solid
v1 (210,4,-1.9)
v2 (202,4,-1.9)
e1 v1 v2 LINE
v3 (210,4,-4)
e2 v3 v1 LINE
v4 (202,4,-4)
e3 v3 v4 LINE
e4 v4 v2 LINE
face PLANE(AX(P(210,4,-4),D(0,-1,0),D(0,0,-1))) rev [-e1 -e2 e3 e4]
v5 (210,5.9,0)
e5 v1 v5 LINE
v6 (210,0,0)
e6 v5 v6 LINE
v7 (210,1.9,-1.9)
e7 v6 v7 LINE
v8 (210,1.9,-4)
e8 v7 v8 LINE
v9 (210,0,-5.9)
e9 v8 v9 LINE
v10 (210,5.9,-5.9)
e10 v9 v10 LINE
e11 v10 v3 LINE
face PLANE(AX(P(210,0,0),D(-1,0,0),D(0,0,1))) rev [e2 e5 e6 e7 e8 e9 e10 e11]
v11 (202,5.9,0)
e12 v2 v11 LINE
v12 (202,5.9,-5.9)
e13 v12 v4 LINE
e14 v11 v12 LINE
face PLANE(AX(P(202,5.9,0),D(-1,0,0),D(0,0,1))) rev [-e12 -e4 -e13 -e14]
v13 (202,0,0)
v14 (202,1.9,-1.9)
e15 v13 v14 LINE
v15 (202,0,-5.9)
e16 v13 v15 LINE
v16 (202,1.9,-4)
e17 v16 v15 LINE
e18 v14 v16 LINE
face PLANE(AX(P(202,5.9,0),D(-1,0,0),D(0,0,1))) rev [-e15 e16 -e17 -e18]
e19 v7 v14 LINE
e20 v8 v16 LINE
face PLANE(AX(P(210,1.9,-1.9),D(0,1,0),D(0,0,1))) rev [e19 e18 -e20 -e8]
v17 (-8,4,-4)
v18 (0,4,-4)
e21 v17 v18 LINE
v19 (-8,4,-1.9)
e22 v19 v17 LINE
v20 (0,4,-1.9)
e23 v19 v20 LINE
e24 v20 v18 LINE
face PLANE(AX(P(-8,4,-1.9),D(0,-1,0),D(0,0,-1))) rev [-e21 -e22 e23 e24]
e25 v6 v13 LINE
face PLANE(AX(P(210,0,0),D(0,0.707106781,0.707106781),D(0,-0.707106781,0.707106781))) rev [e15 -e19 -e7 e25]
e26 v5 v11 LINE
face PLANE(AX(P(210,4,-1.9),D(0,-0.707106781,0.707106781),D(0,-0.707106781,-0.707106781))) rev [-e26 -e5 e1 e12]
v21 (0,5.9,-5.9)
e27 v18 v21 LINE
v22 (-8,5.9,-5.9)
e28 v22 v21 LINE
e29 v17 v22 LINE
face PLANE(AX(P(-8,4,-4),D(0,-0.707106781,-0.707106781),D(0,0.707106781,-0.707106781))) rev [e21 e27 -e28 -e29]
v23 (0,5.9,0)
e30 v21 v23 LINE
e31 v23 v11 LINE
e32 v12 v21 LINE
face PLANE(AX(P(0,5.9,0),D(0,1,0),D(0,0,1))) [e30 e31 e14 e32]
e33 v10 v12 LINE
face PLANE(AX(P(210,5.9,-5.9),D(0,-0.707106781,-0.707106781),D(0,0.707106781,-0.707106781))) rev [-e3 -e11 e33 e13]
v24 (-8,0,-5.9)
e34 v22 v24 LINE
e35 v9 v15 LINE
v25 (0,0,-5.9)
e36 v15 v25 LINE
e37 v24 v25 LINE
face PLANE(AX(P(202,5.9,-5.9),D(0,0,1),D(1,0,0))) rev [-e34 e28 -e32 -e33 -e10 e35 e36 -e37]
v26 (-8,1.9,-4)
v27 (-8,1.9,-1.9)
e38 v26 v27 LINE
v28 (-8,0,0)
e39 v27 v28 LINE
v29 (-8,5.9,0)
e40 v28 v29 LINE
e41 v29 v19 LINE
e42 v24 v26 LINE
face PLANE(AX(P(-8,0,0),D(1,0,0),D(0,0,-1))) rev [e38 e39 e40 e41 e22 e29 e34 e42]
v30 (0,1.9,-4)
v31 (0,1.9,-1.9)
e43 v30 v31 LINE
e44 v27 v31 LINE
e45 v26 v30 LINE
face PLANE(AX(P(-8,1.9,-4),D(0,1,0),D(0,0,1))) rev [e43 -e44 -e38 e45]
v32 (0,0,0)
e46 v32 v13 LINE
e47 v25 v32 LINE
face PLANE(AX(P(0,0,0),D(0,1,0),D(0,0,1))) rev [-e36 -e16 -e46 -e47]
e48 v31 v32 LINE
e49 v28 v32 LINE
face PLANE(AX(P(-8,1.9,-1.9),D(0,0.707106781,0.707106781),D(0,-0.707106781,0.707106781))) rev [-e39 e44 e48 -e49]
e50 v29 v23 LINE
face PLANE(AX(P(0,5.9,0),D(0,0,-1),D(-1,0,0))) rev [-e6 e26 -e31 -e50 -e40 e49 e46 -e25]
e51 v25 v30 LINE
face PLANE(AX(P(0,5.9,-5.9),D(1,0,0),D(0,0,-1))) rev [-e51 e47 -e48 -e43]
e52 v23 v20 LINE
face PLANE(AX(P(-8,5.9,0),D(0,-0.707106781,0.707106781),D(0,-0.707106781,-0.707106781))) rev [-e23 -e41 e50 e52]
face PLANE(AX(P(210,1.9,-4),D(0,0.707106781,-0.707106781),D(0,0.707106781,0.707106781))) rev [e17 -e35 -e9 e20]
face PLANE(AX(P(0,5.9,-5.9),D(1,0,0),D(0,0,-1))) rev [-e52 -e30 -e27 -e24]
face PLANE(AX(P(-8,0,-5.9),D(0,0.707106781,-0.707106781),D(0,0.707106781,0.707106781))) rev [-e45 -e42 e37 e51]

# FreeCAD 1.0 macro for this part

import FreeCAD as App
import Part
import Sketcher
Q = App.Units.Quantity


def add_polygon(sketch, points):
    """Adds a closed chain of lines whose ends are joined by coincident constraints."""
    first, n = sketch.GeometryCount, len(points)
    for a, b in zip(points, points[1:] + points[:1]):
        sketch.addGeometry(Part.LineSegment(App.Vector(*a, 0), App.Vector(*b, 0)), False)
    for i in range(n):
        sketch.addConstraint(Sketcher.Constraint("Coincident", first + i, 2, first + (i + 1) % n, 1))

doc = App.newDocument("Part")
body = doc.addObject("PartDesign::Body", "Body")

sketch1 = body.newObject("Sketcher::SketchObject", "Sketch")
sketch1.AttachmentSupport = (doc.getObject("XZ_Plane"), [""])
sketch1.MapMode = "FlatFace"
add_polygon(sketch1, [(0, -5.9), (0, 0), (202, 0), (202, -5.9)])
sketch1.addConstraint(Sketcher.Constraint("Vertical", 0))
sketch1.addConstraint(Sketcher.Constraint("Horizontal", 1))
sketch1.addConstraint(Sketcher.Constraint("Vertical", 2))
sketch1.addConstraint(Sketcher.Constraint("Horizontal", 3))
sketch1.addConstraint(Sketcher.Constraint("Coincident", 0, 2, -1, 1))
sketch1.addConstraint(Sketcher.Constraint("DistanceX", 1, 1, 1, 2, Q("202 mm")))
sketch1.addConstraint(Sketcher.Constraint("DistanceY", 0, 1, 0, 2, Q("5.9 mm")))
pad1 = body.newObject("PartDesign::Pad", "Pad")
pad1.Profile = sketch1
pad1.Length = 5.9
pad1.Reversed = True

sketch2 = body.newObject("Sketcher::SketchObject", "Sketch001")
sketch2.AttachmentSupport = (doc.getObject("YZ_Plane"), [""])
sketch2.MapMode = "FlatFace"
add_polygon(sketch2, [(5.9, -5.9), (0, -5.9), (1.9, -4), (1.9, -1.9), (0, 0), (5.9, 0), (4, -1.9), (4, -4)])
sketch2.addConstraint(Sketcher.Constraint("Horizontal", 0))
sketch2.addConstraint(Sketcher.Constraint("Vertical", 2))
sketch2.addConstraint(Sketcher.Constraint("Horizontal", 4))
sketch2.addConstraint(Sketcher.Constraint("Vertical", 6))
sketch2.addConstraint(Sketcher.Constraint("Coincident", 3, 2, -1, 1))
sketch2.addConstraint(Sketcher.Constraint("PointOnObject", 0, 2, -2))
sketch2.addConstraint(Sketcher.Constraint("Perpendicular", 1, 3))
sketch2.addConstraint(Sketcher.Constraint("Perpendicular", 3, 5))
sketch2.addConstraint(Sketcher.Constraint("Perpendicular", 5, 7))
sketch2.addConstraint(Sketcher.Constraint("Horizontal", 2, 2, 5, 2))
sketch2.addConstraint(Sketcher.Constraint("Horizontal", 1, 2, 6, 2))
sketch2.addConstraint(Sketcher.Constraint("Vertical", 4, 2, 7, 2))
sketch2.addConstraint(Sketcher.Constraint("DistanceX", 0, 2, 0, 1, Q("5.9 mm")))
sketch2.addConstraint(Sketcher.Constraint("DistanceY", 2, 1, 2, 2, Q("2.1 mm")))
sketch2.addConstraint(Sketcher.Constraint("DistanceY", 1, 2, -1, 1, Q("4 mm")))
pad2 = body.newObject("PartDesign::Pad", "Pad001")
pad2.Profile = sketch2
pad2.Length = 8
pad2.Reversed = True

sketch3 = body.newObject("Sketcher::SketchObject", "Sketch002")
sketch3.AttachmentSupport = (doc.getObject("YZ_Plane"), [""])
sketch3.MapMode = "FlatFace"
sketch3.AttachmentOffset = App.Placement(App.Vector(0, 0, 202), App.Rotation())
add_polygon(sketch3, [(5.9, 0), (0, 0), (1.9, -1.9), (1.9, -4), (0, -5.9), (5.9, -5.9), (4, -4), (4, -1.9)])
sketch3.addConstraint(Sketcher.Constraint("Horizontal", 0))
sketch3.addConstraint(Sketcher.Constraint("Vertical", 2))
sketch3.addConstraint(Sketcher.Constraint("Horizontal", 4))
sketch3.addConstraint(Sketcher.Constraint("Vertical", 6))
sketch3.addConstraint(Sketcher.Constraint("Coincident", 0, 2, -1, 1))
sketch3.addConstraint(Sketcher.Constraint("PointOnObject", 3, 2, -2))
sketch3.addConstraint(Sketcher.Constraint("Perpendicular", 1, 3))
sketch3.addConstraint(Sketcher.Constraint("Perpendicular", 3, 5))
sketch3.addConstraint(Sketcher.Constraint("Perpendicular", 5, 7))
sketch3.addConstraint(Sketcher.Constraint("Horizontal", 2, 2, 5, 2))
sketch3.addConstraint(Sketcher.Constraint("Horizontal", 1, 2, 6, 2))
sketch3.addConstraint(Sketcher.Constraint("Vertical", 4, 2, 7, 2))
sketch3.addConstraint(Sketcher.Constraint("DistanceX", 0, 2, 0, 1, Q("5.9 mm")))
sketch3.addConstraint(Sketcher.Constraint("DistanceY", 2, 2, 2, 1, Q("2.1 mm")))
sketch3.addConstraint(Sketcher.Constraint("DistanceY", 2, 2, -1, 1, Q("4 mm")))
pad3 = body.newObject("PartDesign::Pad", "Pad002")
pad3.Profile = sketch3
pad3.Length = 8

doc.recompute()
